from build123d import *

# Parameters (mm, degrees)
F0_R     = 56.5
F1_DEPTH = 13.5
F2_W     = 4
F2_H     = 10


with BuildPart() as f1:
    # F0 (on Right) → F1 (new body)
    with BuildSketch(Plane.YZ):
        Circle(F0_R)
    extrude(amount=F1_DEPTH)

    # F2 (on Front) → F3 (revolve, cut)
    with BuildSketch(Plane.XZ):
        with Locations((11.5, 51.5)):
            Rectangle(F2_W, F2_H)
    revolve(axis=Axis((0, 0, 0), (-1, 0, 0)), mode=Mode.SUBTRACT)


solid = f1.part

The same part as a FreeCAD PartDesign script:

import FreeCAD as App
import Part
import Sketcher
from FreeCAD import Vector
Q = App.Units.Quantity


def add_polygon(sketch, points):
    """Adds a closed chain of lines whose ends are joined by coincident constraints."""
    first, n = sketch.GeometryCount, len(points)
    for a, b in zip(points, points[1:] + points[:1]):
        sketch.addGeometry(Part.LineSegment(App.Vector(*a, 0), App.Vector(*b, 0)), False)
    for i in range(n):
        sketch.addConstraint(Sketcher.Constraint("Coincident", first + i, 2, first + (i + 1) % n, 1))

doc = App.newDocument("Part")
params = doc.addObject("Spreadsheet::Sheet", "Params")
for row, (alias, value) in enumerate([
    ("sketch1_diameter", "113 mm"),
    ("pad1_length", "13.5 mm"),
    ("sketch2_width", "4 mm"),
    ("sketch2_height", "10 mm"),
    ("groove_angle", "360 deg"),
], start=1):
    params.set(f"A{row}", alias)
    params.set(f"B{row}", "=" + value)
    params.setAlias(f"B{row}", alias)

body = doc.addObject("PartDesign::Body", "Body")

# Sketch on YZ plane
sketch1 = body.newObject("Sketcher::SketchObject", "Sketch")
sketch1.AttachmentSupport = (doc.getObject("YZ_Plane"), [""])
sketch1.MapMode = "FlatFace"
sketch1.addGeometry(Part.Circle(Vector(0, 0, 0), Vector(0, 0, 1), 56), False)
sketch1.addConstraint(Sketcher.Constraint("Coincident", 0, 3, -1, 1))
sketch1.addConstraint(Sketcher.Constraint("Diameter", 0, Q("113 mm")))
sketch1.setExpression("Constraints[1]", "Params.sketch1_diameter")
pad1 = body.newObject("PartDesign::Pad", "Pad")
pad1.Profile = sketch1
pad1.setExpression("Length", "Params.pad1_length")

# Sketch on XZ plane
sketch2 = body.newObject("Sketcher::SketchObject", "Sketch001")
sketch2.AttachmentSupport = (doc.getObject("XZ_Plane"), [""])
sketch2.MapMode = "FlatFace"
add_polygon(sketch2, [(9.5, 56.5), (9.5, 46.5), (13.5, 46.5), (13.5, 56.5)])  # lines 0-3
sketch2.addConstraint(Sketcher.Constraint("Vertical", 0))
sketch2.addConstraint(Sketcher.Constraint("Horizontal", 1))
sketch2.addConstraint(Sketcher.Constraint("Vertical", 2))
sketch2.addConstraint(Sketcher.Constraint("Horizontal", 3))
sketch2.addConstraint(Sketcher.Constraint("DistanceX", 1, 1, 1, 2, Q("4 mm")))
sketch2.addConstraint(Sketcher.Constraint("DistanceY", 0, 2, 0, 1, Q("10 mm")))
sketch2.addConstraint(Sketcher.Constraint("DistanceX", -1, 1, 0, 2, Q("9.5 mm")))
sketch2.addConstraint(Sketcher.Constraint("DistanceY", -1, 1, 0, 2, Q("46.5 mm")))
sketch2.setExpression("Constraints[8]", "Params.sketch2_width")
sketch2.setExpression("Constraints[9]", "Params.sketch2_height")
groove = body.newObject("PartDesign::Groove", "Groove")
groove.Profile = sketch2
groove.ReferenceAxis = (sketch2, ["H_Axis"])
groove.setExpression("Angle", "Params.groove_angle")

doc.recompute()
